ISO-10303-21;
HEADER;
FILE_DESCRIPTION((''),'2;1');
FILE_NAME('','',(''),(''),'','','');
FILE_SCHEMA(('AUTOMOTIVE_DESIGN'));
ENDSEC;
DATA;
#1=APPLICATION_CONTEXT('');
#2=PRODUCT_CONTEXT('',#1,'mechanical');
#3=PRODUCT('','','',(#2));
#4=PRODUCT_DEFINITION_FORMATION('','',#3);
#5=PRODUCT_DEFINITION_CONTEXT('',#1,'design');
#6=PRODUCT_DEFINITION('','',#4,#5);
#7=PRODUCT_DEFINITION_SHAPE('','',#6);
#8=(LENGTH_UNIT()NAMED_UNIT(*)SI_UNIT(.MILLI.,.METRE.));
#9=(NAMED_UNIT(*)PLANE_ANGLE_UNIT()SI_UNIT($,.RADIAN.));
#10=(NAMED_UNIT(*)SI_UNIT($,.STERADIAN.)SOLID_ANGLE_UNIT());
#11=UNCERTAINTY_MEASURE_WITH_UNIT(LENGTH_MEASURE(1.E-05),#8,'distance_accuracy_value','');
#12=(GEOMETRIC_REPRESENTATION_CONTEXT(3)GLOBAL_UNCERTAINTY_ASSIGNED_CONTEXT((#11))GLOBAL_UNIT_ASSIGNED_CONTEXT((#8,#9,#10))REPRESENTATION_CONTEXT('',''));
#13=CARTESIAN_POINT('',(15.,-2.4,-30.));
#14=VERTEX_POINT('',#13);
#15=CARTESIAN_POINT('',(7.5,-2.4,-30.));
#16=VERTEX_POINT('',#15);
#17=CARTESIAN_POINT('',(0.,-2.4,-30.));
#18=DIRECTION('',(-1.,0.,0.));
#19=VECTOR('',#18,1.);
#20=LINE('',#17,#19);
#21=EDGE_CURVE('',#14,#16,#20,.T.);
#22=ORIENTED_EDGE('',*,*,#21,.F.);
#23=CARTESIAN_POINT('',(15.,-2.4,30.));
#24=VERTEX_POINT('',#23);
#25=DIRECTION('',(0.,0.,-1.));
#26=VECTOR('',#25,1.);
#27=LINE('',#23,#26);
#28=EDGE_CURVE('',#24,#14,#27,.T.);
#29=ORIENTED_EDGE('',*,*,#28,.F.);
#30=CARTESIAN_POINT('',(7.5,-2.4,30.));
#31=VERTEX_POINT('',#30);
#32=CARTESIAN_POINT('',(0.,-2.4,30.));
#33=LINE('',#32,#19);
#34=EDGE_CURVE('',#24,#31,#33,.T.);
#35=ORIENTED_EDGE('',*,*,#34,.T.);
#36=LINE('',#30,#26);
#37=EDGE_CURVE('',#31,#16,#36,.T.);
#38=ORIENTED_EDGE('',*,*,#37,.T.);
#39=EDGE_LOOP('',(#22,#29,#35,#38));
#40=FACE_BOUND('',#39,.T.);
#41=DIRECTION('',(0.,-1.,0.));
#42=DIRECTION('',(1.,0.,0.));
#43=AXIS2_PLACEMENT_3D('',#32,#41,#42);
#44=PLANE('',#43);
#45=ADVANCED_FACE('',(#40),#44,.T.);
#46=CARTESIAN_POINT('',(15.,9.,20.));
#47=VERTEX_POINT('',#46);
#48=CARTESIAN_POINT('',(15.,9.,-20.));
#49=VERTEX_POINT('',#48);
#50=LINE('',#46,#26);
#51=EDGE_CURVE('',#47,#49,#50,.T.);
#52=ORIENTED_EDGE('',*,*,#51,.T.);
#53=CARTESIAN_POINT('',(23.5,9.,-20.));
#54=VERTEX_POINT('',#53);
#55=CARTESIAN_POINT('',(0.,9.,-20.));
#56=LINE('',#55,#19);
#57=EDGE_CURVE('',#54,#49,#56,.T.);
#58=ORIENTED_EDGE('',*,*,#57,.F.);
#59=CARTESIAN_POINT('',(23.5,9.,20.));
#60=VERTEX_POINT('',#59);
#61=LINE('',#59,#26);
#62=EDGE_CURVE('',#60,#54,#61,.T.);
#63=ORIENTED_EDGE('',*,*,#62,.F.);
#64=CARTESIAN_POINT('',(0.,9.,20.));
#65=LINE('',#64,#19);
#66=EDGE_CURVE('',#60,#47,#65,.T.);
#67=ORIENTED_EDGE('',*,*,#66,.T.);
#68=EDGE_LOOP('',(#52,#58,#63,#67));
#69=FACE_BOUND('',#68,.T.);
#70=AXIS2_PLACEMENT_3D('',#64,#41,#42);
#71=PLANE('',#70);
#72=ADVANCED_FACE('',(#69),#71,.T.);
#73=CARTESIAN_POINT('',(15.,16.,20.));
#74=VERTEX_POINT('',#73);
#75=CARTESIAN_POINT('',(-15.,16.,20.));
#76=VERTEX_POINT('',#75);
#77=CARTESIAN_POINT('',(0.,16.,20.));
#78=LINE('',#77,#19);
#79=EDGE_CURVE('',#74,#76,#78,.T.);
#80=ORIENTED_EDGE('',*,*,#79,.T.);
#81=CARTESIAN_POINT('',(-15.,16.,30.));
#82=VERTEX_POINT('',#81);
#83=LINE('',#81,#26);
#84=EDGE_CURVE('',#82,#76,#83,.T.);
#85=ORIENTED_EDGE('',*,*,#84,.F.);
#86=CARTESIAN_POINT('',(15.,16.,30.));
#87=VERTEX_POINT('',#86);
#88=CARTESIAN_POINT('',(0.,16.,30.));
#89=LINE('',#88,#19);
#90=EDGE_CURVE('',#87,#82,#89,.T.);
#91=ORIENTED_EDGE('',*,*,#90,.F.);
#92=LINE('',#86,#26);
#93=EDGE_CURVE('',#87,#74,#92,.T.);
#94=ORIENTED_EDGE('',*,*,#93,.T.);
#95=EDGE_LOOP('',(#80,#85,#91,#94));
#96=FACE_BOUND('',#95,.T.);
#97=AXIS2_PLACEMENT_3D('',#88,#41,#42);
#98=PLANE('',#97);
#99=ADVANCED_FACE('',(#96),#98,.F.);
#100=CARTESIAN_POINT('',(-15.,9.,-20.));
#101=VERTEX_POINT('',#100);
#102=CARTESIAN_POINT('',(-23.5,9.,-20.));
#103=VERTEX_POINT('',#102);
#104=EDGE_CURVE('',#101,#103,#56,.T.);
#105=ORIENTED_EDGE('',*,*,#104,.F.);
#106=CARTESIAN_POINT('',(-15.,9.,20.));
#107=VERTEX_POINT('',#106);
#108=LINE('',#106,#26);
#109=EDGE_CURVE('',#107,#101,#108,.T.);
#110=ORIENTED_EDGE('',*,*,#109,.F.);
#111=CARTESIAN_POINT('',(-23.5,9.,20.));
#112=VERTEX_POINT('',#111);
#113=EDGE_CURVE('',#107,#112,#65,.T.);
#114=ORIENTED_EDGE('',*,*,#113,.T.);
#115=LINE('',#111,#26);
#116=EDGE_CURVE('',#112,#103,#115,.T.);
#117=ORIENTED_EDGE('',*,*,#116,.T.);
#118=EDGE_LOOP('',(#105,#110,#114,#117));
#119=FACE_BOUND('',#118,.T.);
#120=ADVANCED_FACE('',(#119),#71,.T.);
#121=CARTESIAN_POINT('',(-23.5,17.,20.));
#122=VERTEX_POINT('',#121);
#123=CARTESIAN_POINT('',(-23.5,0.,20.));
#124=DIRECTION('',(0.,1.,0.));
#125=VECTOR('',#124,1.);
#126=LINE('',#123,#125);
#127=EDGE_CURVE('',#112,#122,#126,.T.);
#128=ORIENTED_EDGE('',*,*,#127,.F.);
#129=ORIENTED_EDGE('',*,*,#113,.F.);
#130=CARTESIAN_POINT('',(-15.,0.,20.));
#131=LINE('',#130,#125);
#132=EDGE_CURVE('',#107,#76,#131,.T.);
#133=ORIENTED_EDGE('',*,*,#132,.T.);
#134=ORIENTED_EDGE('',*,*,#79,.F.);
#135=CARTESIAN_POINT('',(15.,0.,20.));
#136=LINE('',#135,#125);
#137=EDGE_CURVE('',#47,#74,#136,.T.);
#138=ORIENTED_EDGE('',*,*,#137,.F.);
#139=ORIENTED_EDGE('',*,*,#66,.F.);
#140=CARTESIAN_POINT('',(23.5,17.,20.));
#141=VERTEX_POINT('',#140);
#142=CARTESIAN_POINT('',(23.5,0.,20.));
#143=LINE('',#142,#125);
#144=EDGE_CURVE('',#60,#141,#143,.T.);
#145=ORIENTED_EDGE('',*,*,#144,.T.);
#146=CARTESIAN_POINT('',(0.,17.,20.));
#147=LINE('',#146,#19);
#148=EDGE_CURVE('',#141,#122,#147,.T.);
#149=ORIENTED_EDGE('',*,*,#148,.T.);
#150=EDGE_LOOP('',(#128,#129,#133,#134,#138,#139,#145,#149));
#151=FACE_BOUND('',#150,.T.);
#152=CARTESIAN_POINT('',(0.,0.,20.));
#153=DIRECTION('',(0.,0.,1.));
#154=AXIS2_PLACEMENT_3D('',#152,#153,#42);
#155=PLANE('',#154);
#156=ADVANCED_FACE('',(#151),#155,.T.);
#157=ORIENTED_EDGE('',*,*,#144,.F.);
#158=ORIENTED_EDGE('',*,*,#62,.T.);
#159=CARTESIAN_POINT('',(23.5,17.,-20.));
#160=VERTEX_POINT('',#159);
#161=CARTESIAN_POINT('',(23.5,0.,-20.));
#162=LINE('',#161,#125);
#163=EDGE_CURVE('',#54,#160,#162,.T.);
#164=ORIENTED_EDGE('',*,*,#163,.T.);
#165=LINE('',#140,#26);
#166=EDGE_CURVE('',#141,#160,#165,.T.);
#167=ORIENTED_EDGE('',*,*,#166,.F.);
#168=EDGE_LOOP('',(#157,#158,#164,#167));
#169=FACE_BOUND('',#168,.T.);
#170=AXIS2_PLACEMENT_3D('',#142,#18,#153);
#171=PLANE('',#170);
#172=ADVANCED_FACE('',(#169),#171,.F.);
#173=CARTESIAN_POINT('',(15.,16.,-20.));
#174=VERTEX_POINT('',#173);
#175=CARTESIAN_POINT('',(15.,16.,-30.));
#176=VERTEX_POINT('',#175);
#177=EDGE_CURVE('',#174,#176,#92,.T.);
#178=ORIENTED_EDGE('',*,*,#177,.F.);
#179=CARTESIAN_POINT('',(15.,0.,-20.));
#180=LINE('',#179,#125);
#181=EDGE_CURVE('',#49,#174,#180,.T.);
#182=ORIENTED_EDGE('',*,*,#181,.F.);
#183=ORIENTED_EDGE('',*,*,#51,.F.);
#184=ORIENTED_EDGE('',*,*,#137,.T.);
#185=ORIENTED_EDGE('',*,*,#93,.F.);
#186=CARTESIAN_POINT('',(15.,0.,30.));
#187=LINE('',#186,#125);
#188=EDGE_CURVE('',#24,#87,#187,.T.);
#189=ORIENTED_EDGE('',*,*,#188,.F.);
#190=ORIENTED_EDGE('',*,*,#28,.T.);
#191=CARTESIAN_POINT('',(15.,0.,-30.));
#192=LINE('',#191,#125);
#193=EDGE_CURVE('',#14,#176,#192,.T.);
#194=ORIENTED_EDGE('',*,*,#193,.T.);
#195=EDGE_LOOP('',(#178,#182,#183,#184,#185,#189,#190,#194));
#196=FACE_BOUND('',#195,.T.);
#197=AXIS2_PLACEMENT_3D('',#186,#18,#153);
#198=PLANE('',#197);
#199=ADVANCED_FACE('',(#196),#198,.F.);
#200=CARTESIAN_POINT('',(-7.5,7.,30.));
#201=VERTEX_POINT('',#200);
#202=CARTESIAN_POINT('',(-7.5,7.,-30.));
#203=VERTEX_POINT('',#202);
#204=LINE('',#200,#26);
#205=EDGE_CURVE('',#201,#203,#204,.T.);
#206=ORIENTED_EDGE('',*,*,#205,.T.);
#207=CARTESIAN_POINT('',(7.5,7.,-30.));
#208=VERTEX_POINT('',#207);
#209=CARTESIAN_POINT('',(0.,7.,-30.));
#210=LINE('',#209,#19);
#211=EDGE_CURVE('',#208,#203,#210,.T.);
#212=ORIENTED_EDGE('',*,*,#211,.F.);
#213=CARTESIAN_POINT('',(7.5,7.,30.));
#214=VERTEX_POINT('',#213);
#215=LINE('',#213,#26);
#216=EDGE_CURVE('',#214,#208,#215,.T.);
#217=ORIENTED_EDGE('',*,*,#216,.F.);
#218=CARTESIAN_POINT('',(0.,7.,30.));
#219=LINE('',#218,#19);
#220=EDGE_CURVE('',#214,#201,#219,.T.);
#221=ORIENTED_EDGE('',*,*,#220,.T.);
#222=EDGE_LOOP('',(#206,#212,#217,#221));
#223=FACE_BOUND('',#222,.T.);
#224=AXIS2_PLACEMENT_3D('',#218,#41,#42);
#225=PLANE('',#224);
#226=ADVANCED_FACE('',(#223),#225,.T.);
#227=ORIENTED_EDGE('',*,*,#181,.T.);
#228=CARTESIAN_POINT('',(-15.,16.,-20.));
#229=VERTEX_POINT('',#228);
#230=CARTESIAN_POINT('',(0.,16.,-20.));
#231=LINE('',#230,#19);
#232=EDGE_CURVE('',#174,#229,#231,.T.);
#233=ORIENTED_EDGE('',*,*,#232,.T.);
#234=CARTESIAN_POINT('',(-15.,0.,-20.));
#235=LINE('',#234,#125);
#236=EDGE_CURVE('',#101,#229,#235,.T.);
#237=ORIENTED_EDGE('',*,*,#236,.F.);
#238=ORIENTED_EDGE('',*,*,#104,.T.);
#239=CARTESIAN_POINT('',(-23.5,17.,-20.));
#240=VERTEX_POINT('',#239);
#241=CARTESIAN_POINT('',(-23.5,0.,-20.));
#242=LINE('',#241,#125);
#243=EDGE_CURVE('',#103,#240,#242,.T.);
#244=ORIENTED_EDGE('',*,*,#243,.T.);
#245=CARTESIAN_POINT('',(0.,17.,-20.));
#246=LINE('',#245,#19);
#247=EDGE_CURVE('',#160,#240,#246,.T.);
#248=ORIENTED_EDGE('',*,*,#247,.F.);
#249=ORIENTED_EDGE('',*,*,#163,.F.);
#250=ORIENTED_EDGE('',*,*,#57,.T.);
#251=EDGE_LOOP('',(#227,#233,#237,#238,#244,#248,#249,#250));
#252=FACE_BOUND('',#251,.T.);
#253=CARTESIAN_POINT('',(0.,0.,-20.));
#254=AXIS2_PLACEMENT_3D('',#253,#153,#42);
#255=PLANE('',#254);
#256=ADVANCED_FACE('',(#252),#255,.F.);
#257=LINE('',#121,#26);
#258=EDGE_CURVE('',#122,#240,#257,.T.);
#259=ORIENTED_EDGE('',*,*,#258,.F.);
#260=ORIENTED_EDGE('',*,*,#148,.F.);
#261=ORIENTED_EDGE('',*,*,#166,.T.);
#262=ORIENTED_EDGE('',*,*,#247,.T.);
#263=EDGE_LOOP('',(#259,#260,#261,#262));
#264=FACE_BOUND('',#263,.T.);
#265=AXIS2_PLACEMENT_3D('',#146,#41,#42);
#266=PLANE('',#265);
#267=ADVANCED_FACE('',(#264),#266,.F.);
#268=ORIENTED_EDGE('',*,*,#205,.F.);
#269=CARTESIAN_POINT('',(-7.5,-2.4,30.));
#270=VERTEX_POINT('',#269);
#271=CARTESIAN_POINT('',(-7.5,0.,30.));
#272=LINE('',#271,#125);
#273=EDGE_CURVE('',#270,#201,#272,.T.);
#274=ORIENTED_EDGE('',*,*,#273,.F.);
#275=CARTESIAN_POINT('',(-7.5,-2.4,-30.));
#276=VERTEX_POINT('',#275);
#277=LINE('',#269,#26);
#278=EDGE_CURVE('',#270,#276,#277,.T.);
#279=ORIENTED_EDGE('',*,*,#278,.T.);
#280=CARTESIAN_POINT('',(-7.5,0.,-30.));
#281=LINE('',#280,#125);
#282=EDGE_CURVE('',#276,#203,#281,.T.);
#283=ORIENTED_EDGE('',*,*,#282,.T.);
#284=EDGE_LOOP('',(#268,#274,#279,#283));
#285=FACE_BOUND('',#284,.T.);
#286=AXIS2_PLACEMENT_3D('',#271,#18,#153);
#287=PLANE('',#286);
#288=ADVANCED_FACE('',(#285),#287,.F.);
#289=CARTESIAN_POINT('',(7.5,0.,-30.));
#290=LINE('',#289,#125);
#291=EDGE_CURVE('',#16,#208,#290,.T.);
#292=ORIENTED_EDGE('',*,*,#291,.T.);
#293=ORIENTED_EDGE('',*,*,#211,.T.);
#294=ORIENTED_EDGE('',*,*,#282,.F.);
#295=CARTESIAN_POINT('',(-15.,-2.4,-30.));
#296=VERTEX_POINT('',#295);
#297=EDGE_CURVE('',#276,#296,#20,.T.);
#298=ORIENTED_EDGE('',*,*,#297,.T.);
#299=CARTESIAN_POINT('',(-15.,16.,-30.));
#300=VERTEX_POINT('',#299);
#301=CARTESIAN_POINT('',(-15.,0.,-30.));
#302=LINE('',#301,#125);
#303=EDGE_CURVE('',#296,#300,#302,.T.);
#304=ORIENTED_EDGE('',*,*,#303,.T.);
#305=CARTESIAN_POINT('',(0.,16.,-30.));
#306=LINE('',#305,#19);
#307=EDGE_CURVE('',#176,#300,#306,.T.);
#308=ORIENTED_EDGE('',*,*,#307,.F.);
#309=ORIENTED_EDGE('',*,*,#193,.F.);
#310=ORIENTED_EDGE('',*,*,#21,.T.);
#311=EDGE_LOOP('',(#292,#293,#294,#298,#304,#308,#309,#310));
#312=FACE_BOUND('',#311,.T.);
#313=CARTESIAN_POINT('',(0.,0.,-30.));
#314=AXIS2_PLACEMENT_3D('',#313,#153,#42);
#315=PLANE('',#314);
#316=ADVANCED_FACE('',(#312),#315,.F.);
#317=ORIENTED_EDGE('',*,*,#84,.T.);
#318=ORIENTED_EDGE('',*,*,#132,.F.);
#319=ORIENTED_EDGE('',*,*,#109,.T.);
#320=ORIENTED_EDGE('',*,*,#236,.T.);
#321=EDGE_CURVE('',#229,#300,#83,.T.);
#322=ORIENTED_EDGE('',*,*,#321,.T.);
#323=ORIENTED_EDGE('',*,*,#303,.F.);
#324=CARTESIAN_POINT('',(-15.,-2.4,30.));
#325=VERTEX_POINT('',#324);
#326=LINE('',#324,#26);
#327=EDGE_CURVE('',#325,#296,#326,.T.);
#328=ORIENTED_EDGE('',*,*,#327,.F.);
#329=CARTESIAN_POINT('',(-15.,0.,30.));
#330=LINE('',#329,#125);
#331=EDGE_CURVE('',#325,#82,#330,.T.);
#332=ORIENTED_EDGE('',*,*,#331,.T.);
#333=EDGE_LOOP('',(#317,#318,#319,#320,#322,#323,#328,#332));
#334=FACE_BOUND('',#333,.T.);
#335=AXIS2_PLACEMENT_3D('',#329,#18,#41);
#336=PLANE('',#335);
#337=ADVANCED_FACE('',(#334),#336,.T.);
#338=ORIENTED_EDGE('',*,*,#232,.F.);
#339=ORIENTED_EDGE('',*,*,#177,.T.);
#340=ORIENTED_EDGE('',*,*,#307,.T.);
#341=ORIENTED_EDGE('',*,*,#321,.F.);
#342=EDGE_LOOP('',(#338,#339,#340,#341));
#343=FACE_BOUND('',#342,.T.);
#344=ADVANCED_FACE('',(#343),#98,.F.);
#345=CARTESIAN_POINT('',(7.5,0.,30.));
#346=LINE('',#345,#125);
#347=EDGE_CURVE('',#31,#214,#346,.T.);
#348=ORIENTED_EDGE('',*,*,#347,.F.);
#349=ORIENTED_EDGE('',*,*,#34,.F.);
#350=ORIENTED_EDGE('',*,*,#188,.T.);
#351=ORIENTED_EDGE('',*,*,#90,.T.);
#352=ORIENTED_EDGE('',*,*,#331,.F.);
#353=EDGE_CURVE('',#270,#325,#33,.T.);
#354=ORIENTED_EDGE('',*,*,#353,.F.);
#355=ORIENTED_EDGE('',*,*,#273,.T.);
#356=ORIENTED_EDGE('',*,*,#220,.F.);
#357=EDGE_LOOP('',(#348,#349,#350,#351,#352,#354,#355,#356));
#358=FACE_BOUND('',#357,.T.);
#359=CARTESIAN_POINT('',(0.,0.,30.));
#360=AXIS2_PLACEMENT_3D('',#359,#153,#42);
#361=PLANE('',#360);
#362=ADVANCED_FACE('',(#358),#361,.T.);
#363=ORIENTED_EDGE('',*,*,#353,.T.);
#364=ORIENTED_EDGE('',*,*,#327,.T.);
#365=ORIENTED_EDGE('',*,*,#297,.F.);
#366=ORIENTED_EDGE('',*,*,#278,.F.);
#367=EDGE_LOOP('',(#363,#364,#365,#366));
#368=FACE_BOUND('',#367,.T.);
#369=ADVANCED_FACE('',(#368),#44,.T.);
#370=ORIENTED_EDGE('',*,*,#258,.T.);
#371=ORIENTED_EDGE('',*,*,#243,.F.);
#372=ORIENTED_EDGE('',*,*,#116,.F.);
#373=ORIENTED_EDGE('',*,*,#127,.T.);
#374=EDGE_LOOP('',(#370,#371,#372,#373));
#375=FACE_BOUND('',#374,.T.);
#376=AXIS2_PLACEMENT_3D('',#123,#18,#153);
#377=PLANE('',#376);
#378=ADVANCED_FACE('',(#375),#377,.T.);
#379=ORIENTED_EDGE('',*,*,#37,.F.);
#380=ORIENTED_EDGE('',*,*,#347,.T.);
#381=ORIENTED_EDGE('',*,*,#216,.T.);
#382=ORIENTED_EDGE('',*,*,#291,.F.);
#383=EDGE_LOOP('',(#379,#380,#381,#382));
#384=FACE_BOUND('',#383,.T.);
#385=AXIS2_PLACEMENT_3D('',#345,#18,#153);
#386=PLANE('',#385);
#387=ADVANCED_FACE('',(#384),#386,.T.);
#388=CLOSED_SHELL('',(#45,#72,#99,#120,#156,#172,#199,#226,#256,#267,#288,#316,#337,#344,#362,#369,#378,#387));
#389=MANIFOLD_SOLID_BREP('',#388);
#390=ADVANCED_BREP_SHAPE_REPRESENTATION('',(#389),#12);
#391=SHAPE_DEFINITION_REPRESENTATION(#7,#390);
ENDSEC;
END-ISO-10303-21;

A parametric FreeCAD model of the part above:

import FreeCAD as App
import Part
import Sketcher
Q = App.Units.Quantity


def add_polygon(sketch, points):
    """Adds a closed chain of lines whose ends are joined by coincident constraints."""
    first, n = sketch.GeometryCount, len(points)
    for a, b in zip(points, points[1:] + points[:1]):
        sketch.addGeometry(Part.LineSegment(App.Vector(*a, 0), App.Vector(*b, 0)), False)
    for i in range(n):
        sketch.addConstraint(Sketcher.Constraint("Coincident", first + i, 2, first + (i + 1) % n, 1))

doc = App.newDocument("Part")
params = doc.addObject("Spreadsheet::Sheet", "Params")
for row, (alias, value) in enumerate([
    ("sketch1_width", "30 mm"),
    ("sketch1_width2", "15 mm"),
    ("sketch1_height", "9.4 mm"),
    ("sketch1_height2", "18.4 mm"),
    ("pad1_length", "60 mm"),
    ("sketch2_width", "47 mm"),
    ("sketch2_width2", "30 mm"),
    ("sketch2_height", "7 mm"),
    ("sketch2_height2", "8 mm"),
    ("pad2_length", "40 mm"),
], start=1):
    params.set(f"A{row}", alias)
    params.set(f"B{row}", "=" + value)
    params.setAlias(f"B{row}", alias)

body = doc.addObject("PartDesign::Body", "Body")

# Sketch on XY plane
sketch1 = body.newObject("Sketcher::SketchObject", "Sketch")
sketch1.AttachmentSupport = (doc.getObject("XY_Plane"), [""])
sketch1.MapMode = "FlatFace"
add_polygon(sketch1, [(8, 7), (8, -2), (15, -2), (15, 16), (-15, 16), (-15, -2), (-8, -2), (-8, 7)])  # lines 0-7
sketch1.addConstraint([
    Sketcher.Constraint("Vertical", 0),
    Sketcher.Constraint("Horizontal", 1),
    Sketcher.Constraint("Vertical", 2),
    Sketcher.Constraint("Horizontal", 3),
    Sketcher.Constraint("Vertical", 4),
    Sketcher.Constraint("Horizontal", 5),
    Sketcher.Constraint("Vertical", 6),
    Sketcher.Constraint("Horizontal", 7),
    Sketcher.Constraint("Symmetric", 1, 2, 4, 2, -2),
    Sketcher.Constraint("Equal", 1, 5),
    Sketcher.Constraint("DistanceX", 3, 2, 3, 1, Q("30 mm")),
    Sketcher.Constraint("DistanceX", 7, 1, 7, 2, Q("15 mm")),
    Sketcher.Constraint("DistanceY", 0, 2, 0, 1, Q("9.4 mm")),
    Sketcher.Constraint("DistanceY", 2, 1, 2, 2, Q("18.4 mm")),
    Sketcher.Constraint("DistanceY", -1, 1, 2, 2, Q("16 mm")),
])
sketch1.setExpression("Constraints[18]", "Params.sketch1_width")
sketch1.setExpression("Constraints[19]", "Params.sketch1_width2")
sketch1.setExpression("Constraints[20]", "Params.sketch1_height")
sketch1.setExpression("Constraints[21]", "Params.sketch1_height2")
pad1 = body.newObject("PartDesign::Pad", "Pad")
pad1.Profile = sketch1
pad1.setExpression("Length", "Params.pad1_length")
pad1.Midplane = True

# Sketch on XY plane
sketch2 = body.newObject("Sketcher::SketchObject", "Sketch001")
sketch2.AttachmentSupport = (doc.getObject("XY_Plane"), [""])
sketch2.MapMode = "FlatFace"
add_polygon(sketch2, [(15, 16), (15, 9), (24, 9), (24, 17), (-24, 17), (-24, 9), (-15, 9), (-15, 16)])  # lines 0-7
sketch2.addConstraint([
    Sketcher.Constraint("Vertical", 0),
    Sketcher.Constraint("Horizontal", 1),
    Sketcher.Constraint("Vertical", 2),
    Sketcher.Constraint("Horizontal", 3),
    Sketcher.Constraint("Vertical", 4),
    Sketcher.Constraint("Horizontal", 5),
    Sketcher.Constraint("Vertical", 6),
    Sketcher.Constraint("Horizontal", 7),
    Sketcher.Constraint("Symmetric", 1, 2, 4, 2, -2),
    Sketcher.Constraint("Equal", 1, 5),
    Sketcher.Constraint("DistanceX", 3, 2, 3, 1, Q("47 mm")),
    Sketcher.Constraint("DistanceX", 7, 1, 7, 2, Q("30 mm")),
    Sketcher.Constraint("DistanceY", 0, 2, 0, 1, Q("7 mm")),
    Sketcher.Constraint("DistanceY", 2, 1, 2, 2, Q("8 mm")),
    Sketcher.Constraint("DistanceY", -1, 1, 0, 2, Q("9 mm")),
])
sketch2.setExpression("Constraints[18]", "Params.sketch2_width")
sketch2.setExpression("Constraints[19]", "Params.sketch2_width2")
sketch2.setExpression("Constraints[20]", "Params.sketch2_height")
sketch2.setExpression("Constraints[21]", "Params.sketch2_height2")
pad2 = body.newObject("PartDesign::Pad", "Pad001")
pad2.Profile = sketch2
pad2.setExpression("Length", "Params.pad2_length")
pad2.Midplane = True

doc.recompute()
